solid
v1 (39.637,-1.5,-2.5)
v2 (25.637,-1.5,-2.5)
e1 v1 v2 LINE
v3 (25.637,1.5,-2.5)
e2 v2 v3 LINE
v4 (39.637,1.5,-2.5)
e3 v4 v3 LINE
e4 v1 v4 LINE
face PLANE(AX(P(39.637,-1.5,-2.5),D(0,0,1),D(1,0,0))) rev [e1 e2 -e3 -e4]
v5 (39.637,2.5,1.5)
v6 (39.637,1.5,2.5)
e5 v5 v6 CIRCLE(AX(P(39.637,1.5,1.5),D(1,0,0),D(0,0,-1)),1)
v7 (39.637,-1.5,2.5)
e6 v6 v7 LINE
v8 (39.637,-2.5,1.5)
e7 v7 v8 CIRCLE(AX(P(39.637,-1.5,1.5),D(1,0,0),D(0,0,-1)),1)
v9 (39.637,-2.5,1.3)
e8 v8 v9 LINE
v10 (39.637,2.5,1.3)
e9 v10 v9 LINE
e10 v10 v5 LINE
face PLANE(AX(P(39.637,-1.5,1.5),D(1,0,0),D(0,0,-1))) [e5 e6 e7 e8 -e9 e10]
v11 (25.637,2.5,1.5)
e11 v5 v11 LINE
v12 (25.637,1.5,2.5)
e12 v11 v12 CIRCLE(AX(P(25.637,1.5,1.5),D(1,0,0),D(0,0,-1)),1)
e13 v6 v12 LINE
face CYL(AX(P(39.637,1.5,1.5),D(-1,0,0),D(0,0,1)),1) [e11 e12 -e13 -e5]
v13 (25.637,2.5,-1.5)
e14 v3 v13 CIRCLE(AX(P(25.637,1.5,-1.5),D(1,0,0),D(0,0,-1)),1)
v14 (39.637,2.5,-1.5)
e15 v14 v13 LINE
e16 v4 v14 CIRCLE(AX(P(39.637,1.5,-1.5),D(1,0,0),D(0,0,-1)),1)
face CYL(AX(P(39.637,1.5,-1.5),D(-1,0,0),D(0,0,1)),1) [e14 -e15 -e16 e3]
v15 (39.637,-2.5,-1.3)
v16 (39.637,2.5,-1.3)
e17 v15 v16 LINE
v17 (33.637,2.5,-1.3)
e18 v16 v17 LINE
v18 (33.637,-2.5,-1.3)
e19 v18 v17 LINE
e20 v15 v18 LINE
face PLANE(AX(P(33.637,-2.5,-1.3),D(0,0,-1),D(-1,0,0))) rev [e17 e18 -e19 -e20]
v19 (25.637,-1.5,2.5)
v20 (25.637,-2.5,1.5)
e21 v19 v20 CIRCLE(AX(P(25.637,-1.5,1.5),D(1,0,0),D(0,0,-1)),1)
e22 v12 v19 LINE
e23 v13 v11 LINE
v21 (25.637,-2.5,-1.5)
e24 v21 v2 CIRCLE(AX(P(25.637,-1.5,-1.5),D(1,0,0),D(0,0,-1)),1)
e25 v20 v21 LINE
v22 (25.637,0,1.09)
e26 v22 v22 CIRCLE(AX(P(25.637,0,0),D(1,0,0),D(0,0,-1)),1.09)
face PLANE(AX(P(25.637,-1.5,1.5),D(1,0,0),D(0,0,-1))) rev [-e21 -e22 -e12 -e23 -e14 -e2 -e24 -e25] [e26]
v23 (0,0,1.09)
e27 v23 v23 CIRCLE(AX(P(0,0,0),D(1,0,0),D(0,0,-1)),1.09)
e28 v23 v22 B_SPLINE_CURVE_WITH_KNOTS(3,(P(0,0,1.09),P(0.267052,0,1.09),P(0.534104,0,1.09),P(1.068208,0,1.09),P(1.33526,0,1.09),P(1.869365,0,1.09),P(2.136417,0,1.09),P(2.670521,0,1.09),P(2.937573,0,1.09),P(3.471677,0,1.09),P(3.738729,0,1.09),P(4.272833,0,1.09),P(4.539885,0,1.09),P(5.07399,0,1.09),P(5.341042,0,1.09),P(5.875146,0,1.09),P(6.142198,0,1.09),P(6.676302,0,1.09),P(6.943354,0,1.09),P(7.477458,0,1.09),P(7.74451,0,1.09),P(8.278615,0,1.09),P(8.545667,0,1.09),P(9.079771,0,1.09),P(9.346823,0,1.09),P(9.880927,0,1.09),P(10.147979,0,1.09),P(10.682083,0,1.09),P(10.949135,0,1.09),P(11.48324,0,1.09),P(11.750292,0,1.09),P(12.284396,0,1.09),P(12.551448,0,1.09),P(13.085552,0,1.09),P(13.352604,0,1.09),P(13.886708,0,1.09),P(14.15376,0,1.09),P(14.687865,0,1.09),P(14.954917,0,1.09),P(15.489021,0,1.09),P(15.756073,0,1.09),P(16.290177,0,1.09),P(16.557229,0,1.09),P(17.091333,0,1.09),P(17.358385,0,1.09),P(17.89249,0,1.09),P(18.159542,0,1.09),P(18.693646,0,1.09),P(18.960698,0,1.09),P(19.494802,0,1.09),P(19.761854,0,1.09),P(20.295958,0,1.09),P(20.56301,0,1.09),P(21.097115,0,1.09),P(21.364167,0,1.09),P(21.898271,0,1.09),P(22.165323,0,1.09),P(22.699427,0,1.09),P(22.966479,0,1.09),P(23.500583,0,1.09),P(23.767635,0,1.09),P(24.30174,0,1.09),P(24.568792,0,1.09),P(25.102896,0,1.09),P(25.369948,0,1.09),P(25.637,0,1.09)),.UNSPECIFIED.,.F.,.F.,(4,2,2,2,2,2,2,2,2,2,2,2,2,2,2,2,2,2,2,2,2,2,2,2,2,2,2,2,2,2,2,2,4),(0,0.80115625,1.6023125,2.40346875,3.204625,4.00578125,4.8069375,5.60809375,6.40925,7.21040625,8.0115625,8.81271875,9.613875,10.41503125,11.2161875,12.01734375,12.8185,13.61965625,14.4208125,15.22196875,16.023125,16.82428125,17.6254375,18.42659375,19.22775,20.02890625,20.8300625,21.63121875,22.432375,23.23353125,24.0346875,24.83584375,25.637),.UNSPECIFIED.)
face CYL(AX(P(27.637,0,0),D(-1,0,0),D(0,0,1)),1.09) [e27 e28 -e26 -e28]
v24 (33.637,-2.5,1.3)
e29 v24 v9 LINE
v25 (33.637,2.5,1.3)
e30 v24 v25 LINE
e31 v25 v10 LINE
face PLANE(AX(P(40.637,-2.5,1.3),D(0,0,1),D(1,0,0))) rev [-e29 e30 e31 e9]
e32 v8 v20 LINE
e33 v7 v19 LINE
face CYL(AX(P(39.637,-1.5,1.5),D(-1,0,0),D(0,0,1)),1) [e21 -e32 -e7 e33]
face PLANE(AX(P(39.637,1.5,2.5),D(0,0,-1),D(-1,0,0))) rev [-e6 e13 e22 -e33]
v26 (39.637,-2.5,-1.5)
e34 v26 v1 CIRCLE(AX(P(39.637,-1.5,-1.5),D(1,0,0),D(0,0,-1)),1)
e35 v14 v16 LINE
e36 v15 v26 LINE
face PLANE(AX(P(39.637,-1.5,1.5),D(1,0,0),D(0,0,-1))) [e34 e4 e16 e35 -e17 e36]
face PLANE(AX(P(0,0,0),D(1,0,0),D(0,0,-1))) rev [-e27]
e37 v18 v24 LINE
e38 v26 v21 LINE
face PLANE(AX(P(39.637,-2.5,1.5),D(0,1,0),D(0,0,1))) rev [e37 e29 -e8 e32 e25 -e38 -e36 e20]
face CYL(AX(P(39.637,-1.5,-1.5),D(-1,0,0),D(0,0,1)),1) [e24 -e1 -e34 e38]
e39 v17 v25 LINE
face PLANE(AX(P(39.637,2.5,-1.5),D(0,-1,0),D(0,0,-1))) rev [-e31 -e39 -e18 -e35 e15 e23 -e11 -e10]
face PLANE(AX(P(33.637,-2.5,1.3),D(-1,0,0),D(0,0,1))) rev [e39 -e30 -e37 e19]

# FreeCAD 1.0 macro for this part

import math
import FreeCAD as App
import Part
import Sketcher

V = App.Vector


def add_polygon(sketch, points):
    """Adds a closed chain of lines whose ends are joined by coincident constraints."""
    first, n = sketch.GeometryCount, len(points)
    for a, b in zip(points, points[1:] + points[:1]):
        sketch.addGeometry(Part.LineSegment(App.Vector(*a, 0), App.Vector(*b, 0)), False)
    for i in range(n):
        sketch.addConstraint(Sketcher.Constraint("Coincident", first + i, 2, first + (i + 1) % n, 1))

doc = App.newDocument("Part")
params = doc.addObject("Spreadsheet::Sheet", "Params")
for row, (alias, value) in enumerate([
    ("sketch1_diameter", "2.18 mm"),
    ("pad1_length", "27.637 mm"),
    ("sketch2_radius", "1 mm"),
    ("sketch2_width", "3 mm"),
    ("pad2_length", "14 mm"),
    ("sketch3_width", "7 mm"),
    ("sketch3_height", "2.6 mm"),
], start=1):
    params.set(f"A{row}", alias)
    params.set(f"B{row}", "=" + value)
    params.setAlias(f"B{row}", alias)

body = doc.addObject("PartDesign::Body", "Body")

sketch1 = doc.addObject("Sketcher::SketchObject", "Sketch")
body.addObject(sketch1)
sketch1.AttachmentSupport = (doc.YZ_Plane, [""])
sketch1.MapMode = "FlatFace"
sketch1.addGeometry(Part.Circle(V(0, 0, 0), V(0, 0, 1), 1.1), False)
sketch1.addConstraint([
    Sketcher.Constraint("Coincident", 0, 3, -1, 1),
    Sketcher.Constraint("Diameter", 0, 2.18),
])
sketch1.setExpression("Constraints[1]", "Params.sketch1_diameter")
pad1 = doc.addObject("PartDesign::Pad", "Pad")
body.addObject(pad1)
pad1.Profile = sketch1
pad1.setExpression("Length", "Params.pad1_length")

sketch2 = doc.addObject("Sketcher::SketchObject", "Sketch001")
body.addObject(sketch2)
sketch2.AttachmentSupport = (doc.YZ_Plane, [""])
sketch2.MapMode = "FlatFace"
sketch2.AttachmentOffset = App.Placement(V(0, 0, 25.637), App.Rotation())
sketch2.addGeometry([
    Part.LineSegment(V(-2.5, 1.5, 0), V(-2.5, -1.5, 0)),
    Part.ArcOfCircle(Part.Circle(V(-1.5, -1.5, 0), V(0, 0, 1), 1), math.radians(-180), math.radians(-90)),
    Part.LineSegment(V(-1.5, -2.5, 0), V(1.5, -2.5, 0)),
    Part.ArcOfCircle(Part.Circle(V(1.5, -1.5, 0), V(0, 0, 1), 1), math.radians(-90), math.radians(0)),
    Part.LineSegment(V(2.5, -1.5, 0), V(2.5, 1.5, 0)),
    Part.ArcOfCircle(Part.Circle(V(1.5, 1.5, 0), V(0, 0, 1), 1), math.radians(0), math.radians(90)),
    Part.LineSegment(V(1.5, 2.5, 0), V(-1.5, 2.5, 0)),
    Part.ArcOfCircle(Part.Circle(V(-1.5, 1.5, 0), V(0, 0, 1), 1), math.radians(90), math.radians(180)),
], False)
sketch2.addConstraint([
    Sketcher.Constraint("Tangent", 0, 2, 1, 1),
    Sketcher.Constraint("Tangent", 1, 2, 2, 1),
    Sketcher.Constraint("Tangent", 2, 2, 3, 1),
    Sketcher.Constraint("Tangent", 3, 2, 4, 1),
    Sketcher.Constraint("Tangent", 4, 2, 5, 1),
    Sketcher.Constraint("Tangent", 5, 2, 6, 1),
    Sketcher.Constraint("Tangent", 6, 2, 7, 1),
    Sketcher.Constraint("Tangent", 7, 2, 0, 1),
    Sketcher.Constraint("Vertical", 0),
    Sketcher.Constraint("Horizontal", 2),
    Sketcher.Constraint("Vertical", 4),
    Sketcher.Constraint("Horizontal", 6),
    Sketcher.Constraint("Equal", 1, 3),
    Sketcher.Constraint("Equal", 3, 5),
    Sketcher.Constraint("Equal", 5, 7),
    Sketcher.Constraint("Symmetric", 1, 3, 5, 3, -1, 1),
    Sketcher.Constraint("Equal", 6, 0),
    Sketcher.Constraint("Radius", 1, 1.0),
    Sketcher.Constraint("DistanceX", 2, 1, 2, 2, 3.0),
])
sketch2.setExpression("Constraints[17]", "Params.sketch2_radius")
sketch2.setExpression("Constraints[18]", "Params.sketch2_width")
pad2 = doc.addObject("PartDesign::Pad", "Pad001")
body.addObject(pad2)
pad2.Profile = sketch2
pad2.setExpression("Length", "Params.pad2_length")

sketch3 = doc.addObject("Sketcher::SketchObject", "Sketch002")
body.addObject(sketch3)
sketch3.AttachmentSupport = (doc.XZ_Plane, [""])
sketch3.MapMode = "FlatFace"
add_polygon(sketch3, [(33.6, -1.3), (33.6, 1.3), (40.6, 1.3), (40.6, -1.3)])
sketch3.addConstraint([
    Sketcher.Constraint("Vertical", 0),
    Sketcher.Constraint("Horizontal", 1),
    Sketcher.Constraint("Vertical", 2),
    Sketcher.Constraint("Horizontal", 3),
    Sketcher.Constraint("DistanceX", 1, 1, 1, 2, 7.0),
    Sketcher.Constraint("DistanceY", 0, 1, 0, 2, 2.6),
    Sketcher.Constraint("DistanceY", -1, 1, 0, 2, 1.3),
    Sketcher.Constraint("DistanceX", -1, 1, 0, 2, 33.637),
])
sketch3.setExpression("Constraints[8]", "Params.sketch3_width")
sketch3.setExpression("Constraints[9]", "Params.sketch3_height")
pocket1 = doc.addObject("PartDesign::Pocket", "Pocket")
body.addObject(pocket1)
pocket1.Profile = sketch3
pocket1.Type = "ThroughAll"
pocket1.Midplane = True

doc.recompute()
